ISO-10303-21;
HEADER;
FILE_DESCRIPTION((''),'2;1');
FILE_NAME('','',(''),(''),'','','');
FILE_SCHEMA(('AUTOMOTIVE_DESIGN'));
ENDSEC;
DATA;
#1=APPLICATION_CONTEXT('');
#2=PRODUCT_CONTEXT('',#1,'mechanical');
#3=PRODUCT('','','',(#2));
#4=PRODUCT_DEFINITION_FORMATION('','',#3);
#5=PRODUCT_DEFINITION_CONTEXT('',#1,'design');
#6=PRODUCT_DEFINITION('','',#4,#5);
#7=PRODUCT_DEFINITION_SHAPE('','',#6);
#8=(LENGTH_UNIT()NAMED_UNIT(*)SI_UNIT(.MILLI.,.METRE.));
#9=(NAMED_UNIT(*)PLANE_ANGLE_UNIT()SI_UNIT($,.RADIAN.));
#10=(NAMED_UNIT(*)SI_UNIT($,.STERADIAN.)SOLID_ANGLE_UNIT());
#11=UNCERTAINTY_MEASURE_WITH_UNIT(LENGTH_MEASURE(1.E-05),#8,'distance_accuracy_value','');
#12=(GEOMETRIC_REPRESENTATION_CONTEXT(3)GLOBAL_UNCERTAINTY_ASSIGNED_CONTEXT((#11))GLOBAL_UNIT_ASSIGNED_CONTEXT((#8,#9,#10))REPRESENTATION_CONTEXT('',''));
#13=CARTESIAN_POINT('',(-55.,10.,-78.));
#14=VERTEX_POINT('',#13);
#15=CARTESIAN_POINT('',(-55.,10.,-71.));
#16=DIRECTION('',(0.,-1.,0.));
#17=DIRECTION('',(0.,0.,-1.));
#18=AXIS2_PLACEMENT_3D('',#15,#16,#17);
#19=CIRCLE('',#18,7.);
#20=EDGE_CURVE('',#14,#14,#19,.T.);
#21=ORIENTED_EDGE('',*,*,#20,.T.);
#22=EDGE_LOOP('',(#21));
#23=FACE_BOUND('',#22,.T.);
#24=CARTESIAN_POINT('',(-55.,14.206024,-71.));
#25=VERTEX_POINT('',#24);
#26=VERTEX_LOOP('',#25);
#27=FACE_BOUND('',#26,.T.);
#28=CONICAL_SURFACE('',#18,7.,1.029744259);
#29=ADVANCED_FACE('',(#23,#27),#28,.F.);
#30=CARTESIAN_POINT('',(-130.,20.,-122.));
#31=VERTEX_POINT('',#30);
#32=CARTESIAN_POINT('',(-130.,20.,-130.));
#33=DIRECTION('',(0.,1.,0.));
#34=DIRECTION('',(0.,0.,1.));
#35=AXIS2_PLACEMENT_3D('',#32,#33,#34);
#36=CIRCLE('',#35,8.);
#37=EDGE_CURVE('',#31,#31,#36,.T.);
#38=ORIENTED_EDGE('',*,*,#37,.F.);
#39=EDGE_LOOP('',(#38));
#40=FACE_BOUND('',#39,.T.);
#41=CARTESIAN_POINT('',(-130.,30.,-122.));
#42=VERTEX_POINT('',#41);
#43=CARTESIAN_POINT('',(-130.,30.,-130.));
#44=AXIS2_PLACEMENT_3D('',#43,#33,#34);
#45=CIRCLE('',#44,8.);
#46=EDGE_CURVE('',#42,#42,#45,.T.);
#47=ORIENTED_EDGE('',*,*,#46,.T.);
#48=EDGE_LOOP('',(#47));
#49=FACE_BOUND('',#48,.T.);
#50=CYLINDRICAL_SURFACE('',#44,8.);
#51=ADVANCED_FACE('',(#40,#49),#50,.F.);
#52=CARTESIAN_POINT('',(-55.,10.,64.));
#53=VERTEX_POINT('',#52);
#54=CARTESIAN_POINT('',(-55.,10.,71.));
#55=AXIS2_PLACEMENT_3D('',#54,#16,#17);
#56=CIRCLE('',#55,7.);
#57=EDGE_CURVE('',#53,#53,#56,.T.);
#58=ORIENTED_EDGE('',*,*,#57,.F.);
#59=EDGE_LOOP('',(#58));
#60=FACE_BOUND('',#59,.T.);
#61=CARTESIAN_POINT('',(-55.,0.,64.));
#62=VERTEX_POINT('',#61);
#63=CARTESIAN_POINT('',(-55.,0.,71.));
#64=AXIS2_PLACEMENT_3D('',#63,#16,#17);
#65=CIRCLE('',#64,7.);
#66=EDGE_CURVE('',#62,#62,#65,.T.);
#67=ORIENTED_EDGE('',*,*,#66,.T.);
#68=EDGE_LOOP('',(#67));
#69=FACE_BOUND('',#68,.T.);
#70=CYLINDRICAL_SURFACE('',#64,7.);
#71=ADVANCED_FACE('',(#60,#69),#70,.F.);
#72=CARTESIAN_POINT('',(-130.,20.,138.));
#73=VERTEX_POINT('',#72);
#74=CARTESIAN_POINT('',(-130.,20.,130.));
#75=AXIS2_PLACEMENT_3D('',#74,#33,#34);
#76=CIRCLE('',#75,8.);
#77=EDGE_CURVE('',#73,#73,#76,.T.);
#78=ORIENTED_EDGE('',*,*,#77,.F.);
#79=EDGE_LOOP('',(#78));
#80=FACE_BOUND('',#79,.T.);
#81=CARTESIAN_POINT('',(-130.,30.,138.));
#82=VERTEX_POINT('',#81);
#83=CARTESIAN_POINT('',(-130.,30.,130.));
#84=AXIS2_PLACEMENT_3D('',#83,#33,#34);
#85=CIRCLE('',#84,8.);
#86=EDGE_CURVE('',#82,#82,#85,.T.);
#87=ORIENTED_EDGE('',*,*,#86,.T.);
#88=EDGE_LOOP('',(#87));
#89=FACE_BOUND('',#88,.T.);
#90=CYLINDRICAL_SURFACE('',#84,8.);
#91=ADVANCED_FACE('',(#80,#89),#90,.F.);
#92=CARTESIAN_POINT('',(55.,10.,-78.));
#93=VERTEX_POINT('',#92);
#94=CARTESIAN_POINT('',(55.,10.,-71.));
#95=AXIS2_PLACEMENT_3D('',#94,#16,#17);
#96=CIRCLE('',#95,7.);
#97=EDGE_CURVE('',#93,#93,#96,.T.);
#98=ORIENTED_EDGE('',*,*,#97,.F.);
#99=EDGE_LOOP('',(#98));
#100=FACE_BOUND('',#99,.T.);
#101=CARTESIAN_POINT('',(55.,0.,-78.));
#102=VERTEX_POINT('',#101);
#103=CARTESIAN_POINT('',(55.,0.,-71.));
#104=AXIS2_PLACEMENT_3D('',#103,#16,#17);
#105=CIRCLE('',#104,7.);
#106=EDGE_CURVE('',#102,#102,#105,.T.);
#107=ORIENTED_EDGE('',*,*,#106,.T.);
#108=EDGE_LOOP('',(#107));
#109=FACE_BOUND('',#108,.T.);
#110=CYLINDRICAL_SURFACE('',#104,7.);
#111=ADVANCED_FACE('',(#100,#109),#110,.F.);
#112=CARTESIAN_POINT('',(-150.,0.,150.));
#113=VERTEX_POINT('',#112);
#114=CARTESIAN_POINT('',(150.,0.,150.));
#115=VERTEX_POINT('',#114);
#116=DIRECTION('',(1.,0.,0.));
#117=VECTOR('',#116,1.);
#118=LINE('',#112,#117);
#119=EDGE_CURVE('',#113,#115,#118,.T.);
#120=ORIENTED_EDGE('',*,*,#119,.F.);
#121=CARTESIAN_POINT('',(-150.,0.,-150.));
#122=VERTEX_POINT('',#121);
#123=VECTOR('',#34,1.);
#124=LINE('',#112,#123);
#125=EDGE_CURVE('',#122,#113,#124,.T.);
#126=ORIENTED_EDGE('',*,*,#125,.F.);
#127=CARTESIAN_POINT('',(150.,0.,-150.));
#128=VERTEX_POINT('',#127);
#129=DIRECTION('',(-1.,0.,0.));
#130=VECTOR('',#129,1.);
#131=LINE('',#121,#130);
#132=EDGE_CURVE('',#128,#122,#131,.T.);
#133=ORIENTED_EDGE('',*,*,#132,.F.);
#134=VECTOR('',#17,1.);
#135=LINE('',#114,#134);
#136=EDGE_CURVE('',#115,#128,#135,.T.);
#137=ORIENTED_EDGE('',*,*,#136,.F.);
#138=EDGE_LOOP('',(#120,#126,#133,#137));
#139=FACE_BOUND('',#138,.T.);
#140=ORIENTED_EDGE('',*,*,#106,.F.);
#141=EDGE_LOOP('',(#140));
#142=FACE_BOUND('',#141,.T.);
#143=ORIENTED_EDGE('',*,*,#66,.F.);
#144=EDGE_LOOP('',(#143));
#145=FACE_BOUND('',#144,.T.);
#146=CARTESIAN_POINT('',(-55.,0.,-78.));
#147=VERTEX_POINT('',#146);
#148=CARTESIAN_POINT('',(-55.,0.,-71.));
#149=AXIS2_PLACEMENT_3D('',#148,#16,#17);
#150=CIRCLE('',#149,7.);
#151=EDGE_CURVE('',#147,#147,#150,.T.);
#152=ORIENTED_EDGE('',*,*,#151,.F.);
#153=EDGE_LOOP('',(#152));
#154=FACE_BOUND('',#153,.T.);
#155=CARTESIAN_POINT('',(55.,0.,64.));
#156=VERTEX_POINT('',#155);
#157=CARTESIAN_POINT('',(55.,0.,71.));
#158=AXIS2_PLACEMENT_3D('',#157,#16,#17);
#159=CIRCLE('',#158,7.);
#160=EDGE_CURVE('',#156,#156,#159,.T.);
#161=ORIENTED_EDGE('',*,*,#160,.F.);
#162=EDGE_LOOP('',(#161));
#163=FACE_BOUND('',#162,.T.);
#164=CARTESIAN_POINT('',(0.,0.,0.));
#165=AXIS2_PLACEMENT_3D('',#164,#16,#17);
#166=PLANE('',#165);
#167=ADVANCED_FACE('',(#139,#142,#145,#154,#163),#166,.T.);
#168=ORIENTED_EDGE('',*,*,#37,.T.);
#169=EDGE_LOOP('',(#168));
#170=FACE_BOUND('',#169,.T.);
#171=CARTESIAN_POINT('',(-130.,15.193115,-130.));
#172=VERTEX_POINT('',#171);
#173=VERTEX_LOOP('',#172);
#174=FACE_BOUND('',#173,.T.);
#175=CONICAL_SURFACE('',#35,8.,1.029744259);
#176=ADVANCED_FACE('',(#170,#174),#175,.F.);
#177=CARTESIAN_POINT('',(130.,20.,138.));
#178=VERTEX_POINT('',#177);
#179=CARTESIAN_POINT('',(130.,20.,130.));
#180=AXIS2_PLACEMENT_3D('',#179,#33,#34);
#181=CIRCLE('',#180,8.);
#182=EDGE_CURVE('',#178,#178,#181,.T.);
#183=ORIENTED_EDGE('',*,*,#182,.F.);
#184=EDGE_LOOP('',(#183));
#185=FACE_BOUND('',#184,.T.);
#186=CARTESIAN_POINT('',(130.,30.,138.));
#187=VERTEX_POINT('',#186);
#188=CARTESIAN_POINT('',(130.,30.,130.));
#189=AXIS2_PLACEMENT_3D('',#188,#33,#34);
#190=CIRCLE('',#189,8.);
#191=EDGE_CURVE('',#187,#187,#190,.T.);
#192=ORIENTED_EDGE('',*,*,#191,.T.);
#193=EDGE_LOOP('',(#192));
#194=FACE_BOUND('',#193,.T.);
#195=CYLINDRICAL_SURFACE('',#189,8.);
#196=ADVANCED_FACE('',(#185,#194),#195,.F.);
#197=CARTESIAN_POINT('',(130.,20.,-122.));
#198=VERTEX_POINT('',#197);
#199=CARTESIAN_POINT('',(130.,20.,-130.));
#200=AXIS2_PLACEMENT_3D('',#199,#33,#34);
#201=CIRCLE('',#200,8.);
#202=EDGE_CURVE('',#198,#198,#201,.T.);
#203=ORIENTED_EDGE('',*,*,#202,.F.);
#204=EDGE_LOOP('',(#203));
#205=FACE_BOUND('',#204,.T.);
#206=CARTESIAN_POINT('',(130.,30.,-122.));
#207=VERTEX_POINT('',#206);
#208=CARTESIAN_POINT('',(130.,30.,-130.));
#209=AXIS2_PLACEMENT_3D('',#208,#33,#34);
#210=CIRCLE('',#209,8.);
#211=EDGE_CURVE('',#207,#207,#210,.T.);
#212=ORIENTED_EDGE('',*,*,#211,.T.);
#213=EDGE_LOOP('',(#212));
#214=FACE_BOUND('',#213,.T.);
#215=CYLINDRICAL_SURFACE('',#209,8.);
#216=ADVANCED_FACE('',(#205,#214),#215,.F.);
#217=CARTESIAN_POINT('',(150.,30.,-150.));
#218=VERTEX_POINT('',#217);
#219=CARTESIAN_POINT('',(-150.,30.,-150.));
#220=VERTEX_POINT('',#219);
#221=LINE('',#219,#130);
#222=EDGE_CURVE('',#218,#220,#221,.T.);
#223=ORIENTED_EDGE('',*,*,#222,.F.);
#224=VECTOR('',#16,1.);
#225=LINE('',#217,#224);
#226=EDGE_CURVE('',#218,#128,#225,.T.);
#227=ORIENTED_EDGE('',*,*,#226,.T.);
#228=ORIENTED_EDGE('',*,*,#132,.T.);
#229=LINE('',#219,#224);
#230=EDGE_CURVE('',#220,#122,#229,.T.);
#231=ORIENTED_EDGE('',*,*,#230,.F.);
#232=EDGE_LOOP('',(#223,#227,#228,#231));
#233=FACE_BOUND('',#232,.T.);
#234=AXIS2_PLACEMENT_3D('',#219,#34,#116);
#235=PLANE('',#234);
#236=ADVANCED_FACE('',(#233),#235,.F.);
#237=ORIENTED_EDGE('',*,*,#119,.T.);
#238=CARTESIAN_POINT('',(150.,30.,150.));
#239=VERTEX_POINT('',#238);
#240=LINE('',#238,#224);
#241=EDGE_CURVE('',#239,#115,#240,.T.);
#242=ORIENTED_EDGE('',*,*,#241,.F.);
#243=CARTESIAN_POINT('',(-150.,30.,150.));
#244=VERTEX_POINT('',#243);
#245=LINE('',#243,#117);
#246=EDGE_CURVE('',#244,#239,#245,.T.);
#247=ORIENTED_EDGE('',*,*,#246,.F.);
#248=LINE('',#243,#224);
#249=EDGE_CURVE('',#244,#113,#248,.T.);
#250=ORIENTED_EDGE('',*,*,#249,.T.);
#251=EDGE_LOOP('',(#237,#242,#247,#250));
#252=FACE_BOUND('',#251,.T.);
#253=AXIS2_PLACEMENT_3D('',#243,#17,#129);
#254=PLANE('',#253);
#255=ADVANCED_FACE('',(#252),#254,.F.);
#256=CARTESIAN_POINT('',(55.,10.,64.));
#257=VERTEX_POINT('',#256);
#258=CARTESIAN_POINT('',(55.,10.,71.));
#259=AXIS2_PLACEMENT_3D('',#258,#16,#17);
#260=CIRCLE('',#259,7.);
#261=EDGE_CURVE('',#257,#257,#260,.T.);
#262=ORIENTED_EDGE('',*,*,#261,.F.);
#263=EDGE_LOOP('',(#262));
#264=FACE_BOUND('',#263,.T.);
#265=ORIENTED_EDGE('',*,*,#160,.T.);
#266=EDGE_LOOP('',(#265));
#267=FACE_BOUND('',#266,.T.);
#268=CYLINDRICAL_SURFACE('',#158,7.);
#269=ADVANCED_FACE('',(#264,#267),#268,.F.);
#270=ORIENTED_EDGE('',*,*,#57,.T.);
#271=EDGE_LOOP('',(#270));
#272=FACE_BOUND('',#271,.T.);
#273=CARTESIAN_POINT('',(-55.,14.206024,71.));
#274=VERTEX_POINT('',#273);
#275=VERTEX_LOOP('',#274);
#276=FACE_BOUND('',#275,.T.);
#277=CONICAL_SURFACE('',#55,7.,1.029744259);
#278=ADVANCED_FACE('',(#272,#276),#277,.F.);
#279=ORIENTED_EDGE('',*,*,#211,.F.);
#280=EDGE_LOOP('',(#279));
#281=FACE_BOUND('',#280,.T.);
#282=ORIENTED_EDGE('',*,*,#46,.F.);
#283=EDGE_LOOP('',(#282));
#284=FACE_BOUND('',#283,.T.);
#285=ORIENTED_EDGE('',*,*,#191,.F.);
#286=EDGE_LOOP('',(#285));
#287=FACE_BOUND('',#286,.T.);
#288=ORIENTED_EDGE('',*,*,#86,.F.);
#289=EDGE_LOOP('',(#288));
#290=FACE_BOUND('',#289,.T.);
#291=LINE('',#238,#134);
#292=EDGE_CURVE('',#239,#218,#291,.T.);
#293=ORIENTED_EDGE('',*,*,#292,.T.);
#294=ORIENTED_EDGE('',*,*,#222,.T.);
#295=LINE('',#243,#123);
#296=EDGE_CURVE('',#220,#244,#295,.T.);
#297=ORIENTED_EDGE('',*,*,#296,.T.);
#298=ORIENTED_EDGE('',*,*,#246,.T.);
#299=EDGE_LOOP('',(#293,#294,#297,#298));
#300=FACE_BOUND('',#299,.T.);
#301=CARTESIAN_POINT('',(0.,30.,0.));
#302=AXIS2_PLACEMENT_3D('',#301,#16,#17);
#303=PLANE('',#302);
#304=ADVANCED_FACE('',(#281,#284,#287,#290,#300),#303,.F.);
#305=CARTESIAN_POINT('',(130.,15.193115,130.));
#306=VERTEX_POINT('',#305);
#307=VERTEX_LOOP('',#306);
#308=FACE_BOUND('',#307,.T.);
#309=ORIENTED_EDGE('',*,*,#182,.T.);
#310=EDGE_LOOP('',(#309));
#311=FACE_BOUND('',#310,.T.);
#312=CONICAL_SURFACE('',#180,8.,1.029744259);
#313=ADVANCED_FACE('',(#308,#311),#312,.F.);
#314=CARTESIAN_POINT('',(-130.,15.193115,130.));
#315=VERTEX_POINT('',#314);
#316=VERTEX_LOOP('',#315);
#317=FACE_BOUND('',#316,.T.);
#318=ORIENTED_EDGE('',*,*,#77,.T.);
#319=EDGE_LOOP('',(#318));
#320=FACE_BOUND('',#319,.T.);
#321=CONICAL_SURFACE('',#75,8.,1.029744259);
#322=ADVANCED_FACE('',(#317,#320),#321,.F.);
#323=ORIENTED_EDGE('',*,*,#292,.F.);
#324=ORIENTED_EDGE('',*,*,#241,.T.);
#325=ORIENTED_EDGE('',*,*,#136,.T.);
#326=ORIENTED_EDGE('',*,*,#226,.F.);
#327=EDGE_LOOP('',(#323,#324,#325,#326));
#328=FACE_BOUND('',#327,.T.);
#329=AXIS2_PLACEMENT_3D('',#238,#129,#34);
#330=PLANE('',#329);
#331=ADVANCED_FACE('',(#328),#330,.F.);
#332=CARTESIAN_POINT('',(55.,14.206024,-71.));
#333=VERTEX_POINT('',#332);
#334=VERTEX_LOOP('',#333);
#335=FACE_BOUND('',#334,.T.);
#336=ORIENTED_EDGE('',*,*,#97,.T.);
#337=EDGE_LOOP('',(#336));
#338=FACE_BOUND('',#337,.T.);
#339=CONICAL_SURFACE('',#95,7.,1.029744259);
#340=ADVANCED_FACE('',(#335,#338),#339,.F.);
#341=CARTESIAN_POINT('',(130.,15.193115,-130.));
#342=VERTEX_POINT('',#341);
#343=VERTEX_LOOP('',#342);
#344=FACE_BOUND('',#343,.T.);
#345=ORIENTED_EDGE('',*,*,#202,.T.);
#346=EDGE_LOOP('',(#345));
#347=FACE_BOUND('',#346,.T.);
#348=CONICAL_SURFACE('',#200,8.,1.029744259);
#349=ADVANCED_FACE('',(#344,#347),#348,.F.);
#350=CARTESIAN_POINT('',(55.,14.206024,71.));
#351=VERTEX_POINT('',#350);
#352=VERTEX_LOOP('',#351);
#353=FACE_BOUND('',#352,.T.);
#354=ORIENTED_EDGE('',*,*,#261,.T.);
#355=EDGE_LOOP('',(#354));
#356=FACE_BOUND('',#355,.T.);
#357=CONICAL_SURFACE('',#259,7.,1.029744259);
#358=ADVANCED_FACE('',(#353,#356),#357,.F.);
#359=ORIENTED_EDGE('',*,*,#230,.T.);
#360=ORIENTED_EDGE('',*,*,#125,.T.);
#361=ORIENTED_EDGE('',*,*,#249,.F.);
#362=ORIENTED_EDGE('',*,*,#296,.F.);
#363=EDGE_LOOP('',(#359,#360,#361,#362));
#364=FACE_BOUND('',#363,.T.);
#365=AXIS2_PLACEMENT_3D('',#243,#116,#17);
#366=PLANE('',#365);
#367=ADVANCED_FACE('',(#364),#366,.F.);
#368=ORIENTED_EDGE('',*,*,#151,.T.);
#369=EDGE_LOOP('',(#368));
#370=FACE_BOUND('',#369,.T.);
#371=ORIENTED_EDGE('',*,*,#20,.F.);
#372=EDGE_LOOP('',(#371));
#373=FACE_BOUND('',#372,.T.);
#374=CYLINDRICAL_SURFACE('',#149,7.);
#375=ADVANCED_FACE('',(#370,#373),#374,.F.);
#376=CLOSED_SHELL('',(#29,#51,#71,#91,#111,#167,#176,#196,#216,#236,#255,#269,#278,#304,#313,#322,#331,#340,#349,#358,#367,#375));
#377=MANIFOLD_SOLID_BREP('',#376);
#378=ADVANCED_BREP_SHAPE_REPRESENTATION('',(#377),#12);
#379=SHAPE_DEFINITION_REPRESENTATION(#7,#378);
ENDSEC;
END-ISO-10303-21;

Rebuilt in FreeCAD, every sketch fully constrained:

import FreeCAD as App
import Part
import Sketcher

V = App.Vector

doc = App.newDocument("Part")
body = doc.addObject("PartDesign::Body", "Body")

sketch1 = body.newObject("Sketcher::SketchObject", "Sketch")
sketch1.AttachmentSupport = (doc.getObject("XZ_Plane"), [""])
sketch1.MapMode = "FlatFace"
sketch1.addGeometry(Part.LineSegment(V(-150, -150, 0), V(-150, 150, 0)), False)
sketch1.addGeometry(Part.LineSegment(V(-150, 150, 0), V(150, 150, 0)), False)
sketch1.addGeometry(Part.LineSegment(V(150, 150, 0), V(150, -150, 0)), False)
sketch1.addGeometry(Part.LineSegment(V(150, -150, 0), V(-150, -150, 0)), False)
sketch1.addConstraint(Sketcher.Constraint("Coincident", 0, 2, 1, 1))
sketch1.addConstraint(Sketcher.Constraint("Coincident", 1, 2, 2, 1))
sketch1.addConstraint(Sketcher.Constraint("Coincident", 2, 2, 3, 1))
sketch1.addConstraint(Sketcher.Constraint("Coincident", 3, 2, 0, 1))
sketch1.addConstraint(Sketcher.Constraint("Vertical", 0))
sketch1.addConstraint(Sketcher.Constraint("Horizontal", 1))
sketch1.addConstraint(Sketcher.Constraint("Vertical", 2))
sketch1.addConstraint(Sketcher.Constraint("Horizontal", 3))
sketch1.addConstraint(Sketcher.Constraint("Symmetric", 0, 2, 2, 2, -1, 1))
sketch1.addConstraint(Sketcher.Constraint("Equal", 3, 0))
sketch1.addConstraint(Sketcher.Constraint("DistanceX", 1, 1, 1, 2, 300.0))
pad1 = body.newObject("PartDesign::Pad", "Pad")
pad1.Profile = sketch1
pad1.Length = 30
pad1.Reversed = True

sketch2 = body.newObject("Sketcher::SketchObject", "Sketch001")
sketch2.AttachmentSupport = (doc.getObject("XZ_Plane"), [""])
sketch2.MapMode = "FlatFace"
sketch2.addGeometry(Part.Circle(V(-55, 71, 0), V(0, 0, 1), 7), False)
sketch2.addGeometry(Part.Circle(V(55, 71, 0), V(0, 0, 1), 7), False)
sketch2.addGeometry(Part.Circle(V(55, -71, 0), V(0, 0, 1), 7), False)
sketch2.addGeometry(Part.Circle(V(-55, -71, 0), V(0, 0, 1), 7), False)
sketch2.addConstraint(Sketcher.Constraint("Equal", 0, 1))
sketch2.addConstraint(Sketcher.Constraint("Equal", 1, 2))
sketch2.addConstraint(Sketcher.Constraint("Equal", 2, 3))
sketch2.addConstraint(Sketcher.Constraint("Symmetric", 0, 3, 2, 3, -1, 1))
sketch2.addConstraint(Sketcher.Constraint("Symmetric", 1, 3, 3, 3, -1, 1))
sketch2.addConstraint(Sketcher.Constraint("Symmetric", 0, 3, 1, 3, -2))
sketch2.addConstraint(Sketcher.Constraint("Diameter", 0, 14.0))
sketch2.addConstraint(Sketcher.Constraint("DistanceX", 0, 3, -1, 1, 55.0))
sketch2.addConstraint(Sketcher.Constraint("DistanceY", -1, 1, 0, 3, 71.0))
doc.recompute()
hole = body.newObject("PartDesign::Hole", "Hole")
hole.Profile = sketch2
hole.ThreadType = "None"
hole.Diameter = 14
hole.DepthType = "Dimension"
hole.Depth = 10
hole.DrillPoint = "Angled"
hole.DrillPointAngle = 118

sketch3 = body.newObject("Sketcher::SketchObject", "Sketch002")
sketch3.AttachmentSupport = (doc.getObject("XZ_Plane"), [""])
sketch3.MapMode = "FlatFace"
sketch3.AttachmentOffset = App.Placement(V(0, 0, -30), App.Rotation())
sketch3.addGeometry(Part.Circle(V(-130, -130, 0), V(0, 0, 1), 8), False)
sketch3.addGeometry(Part.Circle(V(130, -130, 0), V(0, 0, 1), 8), False)
sketch3.addGeometry(Part.Circle(V(130, 130, 0), V(0, 0, 1), 8), False)
sketch3.addGeometry(Part.Circle(V(-130, 130, 0), V(0, 0, 1), 8), False)
sketch3.addConstraint(Sketcher.Constraint("Equal", 0, 1))
sketch3.addConstraint(Sketcher.Constraint("Equal", 1, 2))
sketch3.addConstraint(Sketcher.Constraint("Equal", 2, 3))
sketch3.addConstraint(Sketcher.Constraint("Symmetric", 0, 3, 2, 3, -1, 1))
sketch3.addConstraint(Sketcher.Constraint("Symmetric", 1, 3, 3, 3, -1, 1))
sketch3.addConstraint(Sketcher.Constraint("Symmetric", 0, 3, 1, 3, -2))
sketch3.addConstraint(Sketcher.Constraint("Diameter", 0, 16.0))
sketch3.addConstraint(Sketcher.Constraint("DistanceX", 0, 3, -1, 1, 130.0))
sketch3.addConstraint(Sketcher.Constraint("DistanceY", 0, 3, -1, 1, 130.0))
doc.recompute()
hole2 = body.newObject("PartDesign::Hole", "Hole001")
hole2.Profile = sketch3
hole2.ThreadType = "None"
hole2.Diameter = 16
hole2.DepthType = "Dimension"
hole2.Depth = 10
hole2.DrillPoint = "Angled"
hole2.DrillPointAngle = 118
hole2.Reversed = True

doc.recompute()
